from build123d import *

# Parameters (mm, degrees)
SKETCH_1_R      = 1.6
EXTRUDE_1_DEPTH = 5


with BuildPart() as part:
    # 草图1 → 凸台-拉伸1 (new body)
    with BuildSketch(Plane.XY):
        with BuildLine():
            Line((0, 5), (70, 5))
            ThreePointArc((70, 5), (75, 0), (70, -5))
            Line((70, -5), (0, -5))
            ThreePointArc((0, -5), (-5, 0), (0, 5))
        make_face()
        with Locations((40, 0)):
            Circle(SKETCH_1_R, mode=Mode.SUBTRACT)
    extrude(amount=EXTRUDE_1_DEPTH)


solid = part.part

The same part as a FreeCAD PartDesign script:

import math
import FreeCAD as App
import Part
import Sketcher

doc = App.newDocument("Part")
body = doc.addObject("PartDesign::Body", "Body")

# Sketch on XY plane
sketch1 = body.newObject("Sketcher::SketchObject", "Sketch")
sketch1.AttachmentSupport = (doc.getObject("XY_Plane"), [""])
sketch1.MapMode = "FlatFace"
sketch1.addGeometry([
    Part.LineSegment(App.Vector(70, 5, 0), App.Vector(0, 5, 0)),  # 0
    Part.ArcOfCircle(Part.Circle(App.Vector(0, 0, 0), App.Vector(0, 0, 1), 5), math.radians(90), math.radians(270)),  # 1
    Part.LineSegment(App.Vector(0, -5, 0), App.Vector(70, -5, 0)),  # 2
    Part.ArcOfCircle(Part.Circle(App.Vector(70, 0, 0), App.Vector(0, 0, 1), 5), math.radians(-90), math.radians(90)),  # 3
    Part.Circle(App.Vector(40, 0, 0), App.Vector(0, 0, 1), 1.6),  # 4
], False)
sketch1.addConstraint([
    Sketcher.Constraint("Tangent", 0, 2, 1, 1),
    Sketcher.Constraint("Tangent", 1, 2, 2, 1),
    Sketcher.Constraint("Tangent", 2, 2, 3, 1),
    Sketcher.Constraint("Tangent", 3, 2, 0, 1),
    Sketcher.Constraint("Horizontal", 0),
    Sketcher.Constraint("Horizontal", 2),
    Sketcher.Constraint("Coincident", 1, 3, -1, 1),
    Sketcher.Constraint("PointOnObject", 4, 3, -1),
    Sketcher.Constraint("Radius", 1, 5.0),
    Sketcher.Constraint("Diameter", 4, 3.2),
    Sketcher.Constraint("DistanceX", 0, 2, 0, 1, 70.0),
    Sketcher.Constraint("DistanceX", -1, 1, 4, 3, 40.0),
])
pad1 = body.newObject("PartDesign::Pad", "Pad")
pad1.Profile = sketch1
pad1.Length = 5

doc.recompute()
